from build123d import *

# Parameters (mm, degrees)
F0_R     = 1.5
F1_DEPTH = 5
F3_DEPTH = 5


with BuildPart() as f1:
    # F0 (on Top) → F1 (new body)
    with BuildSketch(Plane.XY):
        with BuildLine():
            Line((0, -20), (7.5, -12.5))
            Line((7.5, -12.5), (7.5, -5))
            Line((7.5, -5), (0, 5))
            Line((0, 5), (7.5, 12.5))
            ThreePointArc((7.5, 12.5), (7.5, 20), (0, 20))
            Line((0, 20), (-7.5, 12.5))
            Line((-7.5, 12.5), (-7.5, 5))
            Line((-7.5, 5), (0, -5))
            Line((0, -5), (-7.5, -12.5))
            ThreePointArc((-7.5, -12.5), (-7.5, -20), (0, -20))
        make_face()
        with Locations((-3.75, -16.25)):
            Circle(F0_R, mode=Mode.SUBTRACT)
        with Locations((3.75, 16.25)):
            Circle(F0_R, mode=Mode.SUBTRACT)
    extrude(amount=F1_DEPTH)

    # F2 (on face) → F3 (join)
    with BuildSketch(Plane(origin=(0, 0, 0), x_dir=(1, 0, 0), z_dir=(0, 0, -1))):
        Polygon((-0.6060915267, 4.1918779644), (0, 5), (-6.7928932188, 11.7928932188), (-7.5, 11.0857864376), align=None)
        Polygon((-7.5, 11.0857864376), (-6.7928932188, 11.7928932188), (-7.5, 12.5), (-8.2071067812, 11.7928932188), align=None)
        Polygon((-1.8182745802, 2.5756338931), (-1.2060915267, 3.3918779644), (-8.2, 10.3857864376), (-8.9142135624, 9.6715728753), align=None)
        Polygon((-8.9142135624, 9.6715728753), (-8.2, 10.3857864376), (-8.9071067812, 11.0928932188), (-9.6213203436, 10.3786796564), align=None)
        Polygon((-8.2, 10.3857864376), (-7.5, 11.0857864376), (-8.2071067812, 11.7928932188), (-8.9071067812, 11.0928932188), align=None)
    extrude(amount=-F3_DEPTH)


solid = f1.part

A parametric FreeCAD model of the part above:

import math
import FreeCAD as App
import Part
import Sketcher
from FreeCAD import Vector
Q = App.Units.Quantity

doc = App.newDocument("Part")
body = doc.addObject("PartDesign::Body", "Body")

# Sketch on XY plane
sketch1 = doc.addObject("Sketcher::SketchObject", "Sketch")
body.addObject(sketch1)
sketch1.AttachmentSupport = (doc.XY_Plane, [""])
sketch1.MapMode = "FlatFace"
sketch1.addGeometry([
    Part.LineSegment(Vector(0, -20, 0), Vector(7.5, -12.5, 0)),  # 0
    Part.LineSegment(Vector(7.5, -12.5, 0), Vector(7.5, -5, 0)),  # 1
    Part.LineSegment(Vector(7.5, -5, 0), Vector(0, 5, 0)),  # 2
    Part.LineSegment(Vector(0, 5, 0), Vector(7.5, 12.5, 0)),  # 3
    Part.ArcOfCircle(Part.Circle(Vector(3.8, 16.2, 0), Vector(0, 0, 1), 5.3), math.radians(-45), math.radians(135)),  # 4
    Part.LineSegment(Vector(0, 20, 0), Vector(-7.5, 12.5, 0)),  # 5
    Part.LineSegment(Vector(-7.5, 12.5, 0), Vector(-7.5, 5, 0)),  # 6
    Part.LineSegment(Vector(-7.5, 5, 0), Vector(0, -5, 0)),  # 7
    Part.LineSegment(Vector(0, -5, 0), Vector(-7.5, -12.5, 0)),  # 8
    Part.ArcOfCircle(Part.Circle(Vector(-3.8, -16.2, 0), Vector(0, 0, 1), 5.3), math.radians(135), math.radians(315)),  # 9
    Part.Circle(Vector(-3.8, -16.2, 0), Vector(0, 0, 1), 1.5),  # 10
    Part.Circle(Vector(3.8, 16.2, 0), Vector(0, 0, 1), 1.5),  # 11
], False)
sketch1.addConstraint([
    Sketcher.Constraint("Coincident", 0, 2, 1, 1),
    Sketcher.Constraint("Coincident", 1, 2, 2, 1),
    Sketcher.Constraint("Coincident", 2, 2, 3, 1),
    Sketcher.Constraint("Tangent", 3, 2, 4, 1),
    Sketcher.Constraint("Tangent", 4, 2, 5, 1),
    Sketcher.Constraint("Coincident", 5, 2, 6, 1),
    Sketcher.Constraint("Coincident", 6, 2, 7, 1),
    Sketcher.Constraint("Coincident", 7, 2, 8, 1),
    Sketcher.Constraint("Tangent", 8, 2, 9, 1),
    Sketcher.Constraint("Tangent", 9, 2, 0, 1),
    Sketcher.Constraint("Vertical", 1),
    Sketcher.Constraint("Vertical", 6),
    Sketcher.Constraint("Coincident", 10, 3, 9, 3),
    Sketcher.Constraint("Coincident", 11, 3, 4, 3),
    Sketcher.Constraint("Equal", 4, 9),
    Sketcher.Constraint("Equal", 10, 11),
    Sketcher.Constraint("Symmetric", 4, 3, 9, 3, -1, 1),
    Sketcher.Constraint("Symmetric", 0, 2, 5, 2, -1, 1),
    Sketcher.Constraint("Symmetric", 2, 2, 7, 2, -1, 1),
    Sketcher.Constraint("Symmetric", 3, 2, 5, 2, -2),
    Sketcher.Constraint("PointOnObject", 2, 2, -2),
    Sketcher.Constraint("PointOnObject", 4, 2, -2),
    Sketcher.Constraint("Parallel", 0, 3),
    Sketcher.Constraint("Parallel", 2, 7),
    Sketcher.Constraint("Horizontal", 2, 2, 6, 2),
    Sketcher.Constraint("Diameter", 10, 3.0),
    Sketcher.Constraint("DistanceY", 1, 1, 1, 2, 7.5),
    Sketcher.Constraint("DistanceY", 1, 2, -1, 1, 5.0),
])
pad1 = doc.addObject("PartDesign::Pad", "Pad")
body.addObject(pad1)
pad1.Profile = sketch1
pad1.Length = 5

# Sketch on XY plane
sketch2 = doc.addObject("Sketcher::SketchObject", "Sketch001")
body.addObject(sketch2)
sketch2.AttachmentSupport = (doc.XY_Plane, [""])
sketch2.MapMode = "FlatFace"
sketch2.addGeometry([
    Part.LineSegment(Vector(-0.6, -4.2, 0), Vector(0, -5, 0)),  # 0
    Part.LineSegment(Vector(0, -5, 0), Vector(-7.5, -12.5, 0)),  # 1
    Part.LineSegment(Vector(-7.5, -12.5, 0), Vector(-9.6, -10.4, 0)),  # 2
    Part.LineSegment(Vector(-9.6, -10.4, 0), Vector(-8.9, -9.7, 0)),  # 3
    Part.LineSegment(Vector(-8.9, -9.7, 0), Vector(-1.8, -2.6, 0)),  # 4
    Part.LineSegment(Vector(-1.8, -2.6, 0), Vector(-1.2, -3.4, 0)),  # 5
    Part.LineSegment(Vector(-1.2, -3.4, 0), Vector(-8.2, -10.4, 0)),  # 6
    Part.LineSegment(Vector(-8.2, -10.4, 0), Vector(-7.5, -11.1, 0)),  # 7
    Part.LineSegment(Vector(-7.5, -11.1, 0), Vector(-0.6, -4.2, 0)),  # 8
], False)
sketch2.addConstraint([
    Sketcher.Constraint("Coincident", 0, 2, 1, 1),
    Sketcher.Constraint("Coincident", 1, 2, 2, 1),
    Sketcher.Constraint("Coincident", 2, 2, 3, 1),
    Sketcher.Constraint("Coincident", 3, 2, 4, 1),
    Sketcher.Constraint("Coincident", 4, 2, 5, 1),
    Sketcher.Constraint("Coincident", 5, 2, 6, 1),
    Sketcher.Constraint("Coincident", 6, 2, 7, 1),
    Sketcher.Constraint("Coincident", 7, 2, 8, 1),
    Sketcher.Constraint("Coincident", 8, 2, 0, 1),
    Sketcher.Constraint("PointOnObject", 0, 2, -2),
    Sketcher.Constraint("Perpendicular", 1, 2),
    Sketcher.Constraint("Perpendicular", 2, 3),
    Sketcher.Constraint("Parallel", 3, 4),
    Sketcher.Constraint("Parallel", 0, 5),
    Sketcher.Constraint("Parallel", 4, 6),
    Sketcher.Constraint("Perpendicular", 6, 7),
    Sketcher.Constraint("Perpendicular", 7, 8),
    Sketcher.Constraint("Vertical", 1, 2, 7, 2),
    Sketcher.Constraint("Angle", 1, Q("-135 deg")),
    Sketcher.Constraint("Distance", 2, 3.0),
    Sketcher.Constraint("Distance", 3, 1.0),
    Sketcher.Constraint("DistanceY", 0, 2, -1, 1, 5.0),
    Sketcher.Constraint("DistanceX", 1, 2, -1, 1, 7.5),
    Sketcher.Constraint("DistanceX", 6, 2, -1, 1, 8.2),
    Sketcher.Constraint("DistanceX", 5, 2, 8, 2, 0.6),
    Sketcher.Constraint("DistanceY", 2, 2, 5, 2, 6.986802),
    Sketcher.Constraint("Distance", 6, 9.89088),
])
pad2 = doc.addObject("PartDesign::Pad", "Pad001")
body.addObject(pad2)
pad2.Profile = sketch2
pad2.Length = 5

doc.recompute()
